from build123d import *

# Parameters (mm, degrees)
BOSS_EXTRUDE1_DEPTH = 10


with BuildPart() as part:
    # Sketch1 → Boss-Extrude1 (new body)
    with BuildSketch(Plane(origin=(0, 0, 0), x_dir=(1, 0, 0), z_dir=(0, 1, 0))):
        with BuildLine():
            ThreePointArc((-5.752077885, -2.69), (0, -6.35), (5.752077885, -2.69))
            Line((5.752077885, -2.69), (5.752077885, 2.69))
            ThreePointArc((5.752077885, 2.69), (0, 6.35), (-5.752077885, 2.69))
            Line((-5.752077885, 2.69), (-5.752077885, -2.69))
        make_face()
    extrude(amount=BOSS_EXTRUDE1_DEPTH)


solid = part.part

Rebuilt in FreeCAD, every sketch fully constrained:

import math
import FreeCAD as App
import Part
import Sketcher
from FreeCAD import Vector
Q = App.Units.Quantity

doc = App.newDocument("Part")
body = doc.addObject("PartDesign::Body", "Body")

# Sketch on XZ plane
sketch1 = body.newObject("Sketcher::SketchObject", "Sketch")
sketch1.AttachmentSupport = (doc.getObject("XZ_Plane"), [""])
sketch1.MapMode = "FlatFace"
sketch1.addGeometry(Part.ArcOfCircle(Part.Circle(Vector(0, 0, 0), Vector(0, 0, 1), 6), math.radians(25), math.radians(155)), False)
sketch1.addGeometry(Part.LineSegment(Vector(6, 3, 0), Vector(6, -3, 0)), False)
sketch1.addGeometry(Part.ArcOfCircle(Part.Circle(Vector(0, 0, 0), Vector(0, 0, 1), 6), math.radians(-155), math.radians(-25)), False)
sketch1.addGeometry(Part.LineSegment(Vector(-6, -3, 0), Vector(-6, 3, 0)), False)
sketch1.addConstraint(Sketcher.Constraint("Coincident", 0, 1, 1, 1))
sketch1.addConstraint(Sketcher.Constraint("Coincident", 1, 2, 2, 2))
sketch1.addConstraint(Sketcher.Constraint("Coincident", 2, 1, 3, 1))
sketch1.addConstraint(Sketcher.Constraint("Coincident", 3, 2, 0, 2))
sketch1.addConstraint(Sketcher.Constraint("Vertical", 1))
sketch1.addConstraint(Sketcher.Constraint("Vertical", 3))
sketch1.addConstraint(Sketcher.Constraint("Coincident", 0, 3, -1, 1))
sketch1.addConstraint(Sketcher.Constraint("Coincident", 2, 3, -1, 1))
sketch1.addConstraint(Sketcher.Constraint("Equal", 0, 2))
sketch1.addConstraint(Sketcher.Constraint("Horizontal", 1, 2, 2, 1))
sketch1.addConstraint(Sketcher.Constraint("Radius", 0, Q("6.35 mm")))
sketch1.addConstraint(Sketcher.Constraint("DistanceY", 1, 2, 1, 1, Q("5.38 mm")))
pad1 = body.newObject("PartDesign::Pad", "Pad")
pad1.Profile = sketch1
pad1.Length = 10
pad1.Reversed = True

doc.recompute()
